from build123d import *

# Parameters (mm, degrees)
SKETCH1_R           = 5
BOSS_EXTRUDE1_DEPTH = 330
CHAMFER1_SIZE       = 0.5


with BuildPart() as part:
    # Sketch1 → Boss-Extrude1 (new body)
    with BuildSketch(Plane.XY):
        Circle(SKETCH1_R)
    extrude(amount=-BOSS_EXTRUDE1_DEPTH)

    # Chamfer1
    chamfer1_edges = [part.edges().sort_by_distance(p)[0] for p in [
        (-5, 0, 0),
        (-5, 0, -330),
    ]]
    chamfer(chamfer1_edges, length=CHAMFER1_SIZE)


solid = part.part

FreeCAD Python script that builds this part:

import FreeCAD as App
import Part
import Sketcher
from FreeCAD import Vector


def edges_at(feature, points):
    """Names of the edges that pass closest to the given points."""
    edges = feature.Shape.Edges
    near = lambda p: min(range(len(edges)), key=lambda i: edges[i].distToShape(Part.Vertex(*p))[0])
    return sorted({f"Edge{near(p) + 1}" for p in points})

doc = App.newDocument("Part")
params = doc.addObject("Spreadsheet::Sheet", "Params")
for row, (alias, value) in enumerate([
    ("sketch1_diameter", "10 mm"),
    ("pad1_length", "330 mm"),
    ("chamfer_size", "0.5 mm"),
], start=1):
    params.set(f"A{row}", alias)
    params.set(f"B{row}", "=" + value)
    params.setAlias(f"B{row}", alias)

body = doc.addObject("PartDesign::Body", "Body")

sketch1 = body.newObject("Sketcher::SketchObject", "Sketch")
sketch1.AttachmentSupport = (doc.getObject("XY_Plane"), [""])
sketch1.MapMode = "FlatFace"
sketch1.addGeometry(Part.Circle(Vector(0, 0, 0), Vector(0, 0, 1), 5), False)
sketch1.addConstraint([
    Sketcher.Constraint("Coincident", 0, 3, -1, 1),
    Sketcher.Constraint("Diameter", 0, 10.0),
])
sketch1.setExpression("Constraints[1]", "Params.sketch1_diameter")
pad1 = body.newObject("PartDesign::Pad", "Pad")
pad1.Profile = sketch1
pad1.setExpression("Length", "Params.pad1_length")
pad1.Reversed = True
doc.recompute()

chamfer = body.newObject("PartDesign::Chamfer", "Chamfer")
chamfer.Base = (pad1, edges_at(pad1, [(-5, 0, 0), (-5, 0, -330)]))
chamfer.setExpression("Size", "Params.chamfer_size")

doc.recompute()
